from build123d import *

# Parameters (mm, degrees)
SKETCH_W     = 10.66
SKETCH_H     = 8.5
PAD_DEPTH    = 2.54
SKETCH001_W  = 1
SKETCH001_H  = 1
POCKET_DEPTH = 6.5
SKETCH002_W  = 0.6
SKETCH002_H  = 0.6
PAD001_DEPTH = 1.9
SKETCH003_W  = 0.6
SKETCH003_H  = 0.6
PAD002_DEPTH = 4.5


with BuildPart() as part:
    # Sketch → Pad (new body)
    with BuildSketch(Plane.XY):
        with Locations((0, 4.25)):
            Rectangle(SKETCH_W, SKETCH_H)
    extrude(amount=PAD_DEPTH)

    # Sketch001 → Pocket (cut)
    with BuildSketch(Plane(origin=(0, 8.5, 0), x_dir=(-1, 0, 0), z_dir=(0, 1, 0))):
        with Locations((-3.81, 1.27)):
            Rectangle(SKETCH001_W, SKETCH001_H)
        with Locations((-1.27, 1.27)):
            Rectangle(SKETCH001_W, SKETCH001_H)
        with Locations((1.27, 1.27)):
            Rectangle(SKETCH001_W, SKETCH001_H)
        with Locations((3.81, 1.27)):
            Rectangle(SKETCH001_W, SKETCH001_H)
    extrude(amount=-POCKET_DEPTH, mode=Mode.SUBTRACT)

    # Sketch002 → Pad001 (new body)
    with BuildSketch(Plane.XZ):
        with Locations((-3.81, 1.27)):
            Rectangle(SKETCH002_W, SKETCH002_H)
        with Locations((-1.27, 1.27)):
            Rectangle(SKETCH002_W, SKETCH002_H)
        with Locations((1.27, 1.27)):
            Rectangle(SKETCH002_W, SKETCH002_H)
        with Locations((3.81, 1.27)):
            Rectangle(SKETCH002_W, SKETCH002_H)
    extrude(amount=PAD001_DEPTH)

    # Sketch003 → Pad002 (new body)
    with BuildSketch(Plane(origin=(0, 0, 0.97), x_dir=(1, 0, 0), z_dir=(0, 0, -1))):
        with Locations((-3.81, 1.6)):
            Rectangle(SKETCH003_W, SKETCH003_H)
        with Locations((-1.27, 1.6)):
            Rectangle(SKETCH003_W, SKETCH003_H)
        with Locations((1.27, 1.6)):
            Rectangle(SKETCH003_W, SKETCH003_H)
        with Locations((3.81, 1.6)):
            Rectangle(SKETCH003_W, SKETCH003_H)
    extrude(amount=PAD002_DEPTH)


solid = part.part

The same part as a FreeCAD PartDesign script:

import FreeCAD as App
import Part
import Sketcher
from FreeCAD import Vector

doc = App.newDocument("Part")
params = doc.addObject("Spreadsheet::Sheet", "Params")
for row, (alias, value) in enumerate([
    ("sketch1_height", "8.5 mm"),
    ("sketch1_width", "10.66 mm"),
    ("pad1_length", "2.54 mm"),
    ("sketch2_width", "1 mm"),
    ("pocket1_length", "6.5 mm"),
    ("sketch3_width", "0.6 mm"),
    ("pad2_length", "1.9 mm"),
    ("sketch4_width", "0.6 mm"),
    ("pad3_length", "4.5 mm"),
], start=1):
    params.set(f"A{row}", alias)
    params.set(f"B{row}", "=" + value)
    params.setAlias(f"B{row}", alias)

body = doc.addObject("PartDesign::Body", "Body")

# Sketch on XY plane
sketch1 = doc.addObject("Sketcher::SketchObject", "Sketch")
body.addObject(sketch1)
sketch1.AttachmentSupport = (doc.XY_Plane, [""])
sketch1.MapMode = "FlatFace"
sketch1.addGeometry([
    Part.LineSegment(Vector(-5, 8, 0), Vector(-5, 0, 0)),
    Part.LineSegment(Vector(-5, 0, 0), Vector(5, 0, 0)),
    Part.LineSegment(Vector(5, 0, 0), Vector(5, 8, 0)),
    Part.LineSegment(Vector(5, 8, 0), Vector(-5, 8, 0)),
], False)
sketch1.addConstraint([
    Sketcher.Constraint("Coincident", 0, 2, 1, 1),
    Sketcher.Constraint("Coincident", 1, 2, 2, 1),
    Sketcher.Constraint("Coincident", 2, 2, 3, 1),
    Sketcher.Constraint("Coincident", 3, 2, 0, 1),
    Sketcher.Constraint("Vertical", 0),
    Sketcher.Constraint("Horizontal", 1),
    Sketcher.Constraint("Vertical", 2),
    Sketcher.Constraint("Horizontal", 3),
    Sketcher.Constraint("Symmetric", 0, 2, 1, 2, -1, 1),
    Sketcher.Constraint("DistanceY", 0, 2, 0, 1, 8.5),
    Sketcher.Constraint("DistanceX", 1, 1, 1, 2, 10.66),
])
sketch1.setExpression("Constraints[9]", "Params.sketch1_height")
sketch1.setExpression("Constraints[10]", "Params.sketch1_width")
pad1 = doc.addObject("PartDesign::Pad", "Pad")
body.addObject(pad1)
pad1.Profile = sketch1
pad1.setExpression("Length", "Params.pad1_length")

# Sketch on XZ plane
sketch2 = doc.addObject("Sketcher::SketchObject", "Sketch001")
body.addObject(sketch2)
sketch2.AttachmentSupport = (doc.XZ_Plane, [""])
sketch2.MapMode = "FlatFace"
sketch2.AttachmentOffset = App.Placement(Vector(0, 0, -8.5), App.Rotation())
sketch2.addGeometry([
    Part.LineSegment(Vector(4.3, 1.8, 0), Vector(4.3, 0.8, 0)),  # 0
    Part.LineSegment(Vector(4.3, 0.8, 0), Vector(3.3, 0.8, 0)),  # 1
    Part.LineSegment(Vector(3.3, 0.8, 0), Vector(3.3, 1.8, 0)),  # 2
    Part.LineSegment(Vector(3.3, 1.8, 0), Vector(4.3, 1.8, 0)),  # 3
    Part.LineSegment(Vector(1.8, 1.8, 0), Vector(1.8, 0.8, 0)),  # 4
    Part.LineSegment(Vector(1.8, 0.8, 0), Vector(0.8, 0.8, 0)),  # 5
    Part.LineSegment(Vector(0.8, 0.8, 0), Vector(0.8, 1.8, 0)),  # 6
    Part.LineSegment(Vector(0.8, 1.8, 0), Vector(1.8, 1.8, 0)),  # 7
    Part.LineSegment(Vector(-0.8, 1.8, 0), Vector(-0.8, 0.8, 0)),  # 8
    Part.LineSegment(Vector(-0.8, 0.8, 0), Vector(-1.8, 0.8, 0)),  # 9
    Part.LineSegment(Vector(-1.8, 0.8, 0), Vector(-1.8, 1.8, 0)),  # 10
    Part.LineSegment(Vector(-1.8, 1.8, 0), Vector(-0.8, 1.8, 0)),  # 11
    Part.LineSegment(Vector(-3.3, 1.8, 0), Vector(-3.3, 0.8, 0)),  # 12
    Part.LineSegment(Vector(-3.3, 0.8, 0), Vector(-4.3, 0.8, 0)),  # 13
    Part.LineSegment(Vector(-4.3, 0.8, 0), Vector(-4.3, 1.8, 0)),  # 14
    Part.LineSegment(Vector(-4.3, 1.8, 0), Vector(-3.3, 1.8, 0)),  # 15
], False)
sketch2.addConstraint([
    Sketcher.Constraint("Coincident", 0, 2, 1, 1),
    Sketcher.Constraint("Coincident", 1, 2, 2, 1),
    Sketcher.Constraint("Coincident", 2, 2, 3, 1),
    Sketcher.Constraint("Coincident", 3, 2, 0, 1),
    Sketcher.Constraint("Coincident", 4, 2, 5, 1),
    Sketcher.Constraint("Coincident", 5, 2, 6, 1),
    Sketcher.Constraint("Coincident", 6, 2, 7, 1),
    Sketcher.Constraint("Coincident", 7, 2, 4, 1),
    Sketcher.Constraint("Coincident", 8, 2, 9, 1),
    Sketcher.Constraint("Coincident", 9, 2, 10, 1),
    Sketcher.Constraint("Coincident", 10, 2, 11, 1),
    Sketcher.Constraint("Coincident", 11, 2, 8, 1),
    Sketcher.Constraint("Coincident", 12, 2, 13, 1),
    Sketcher.Constraint("Coincident", 13, 2, 14, 1),
    Sketcher.Constraint("Coincident", 14, 2, 15, 1),
    Sketcher.Constraint("Coincident", 15, 2, 12, 1),
    Sketcher.Constraint("Vertical", 0),
    Sketcher.Constraint("Horizontal", 1),
    Sketcher.Constraint("Vertical", 2),
    Sketcher.Constraint("Horizontal", 3),
    Sketcher.Constraint("Vertical", 4),
    Sketcher.Constraint("Horizontal", 5),
    Sketcher.Constraint("Vertical", 6),
    Sketcher.Constraint("Horizontal", 7),
    Sketcher.Constraint("Vertical", 8),
    Sketcher.Constraint("Horizontal", 9),
    Sketcher.Constraint("Vertical", 10),
    Sketcher.Constraint("Horizontal", 11),
    Sketcher.Constraint("Vertical", 12),
    Sketcher.Constraint("Horizontal", 13),
    Sketcher.Constraint("Vertical", 14),
    Sketcher.Constraint("Horizontal", 15),
    Sketcher.Constraint("Symmetric", 5, 2, 8, 2, -2),
    Sketcher.Constraint("Symmetric", 7, 2, 10, 2, -2),
    Sketcher.Constraint("Symmetric", 1, 2, 12, 2, -2),
    Sketcher.Constraint("Symmetric", 3, 2, 14, 2, -2),
    Sketcher.Constraint("Horizontal", 1, 2, 4, 2),
    Sketcher.Constraint("Horizontal", 3, 2, 6, 2),
    Sketcher.Constraint("Equal", 3, 5),
    Sketcher.Constraint("Equal", 15, 0),
    Sketcher.Constraint("DistanceX", 1, 2, 1, 1, 1.0),
    Sketcher.Constraint("DistanceX", -1, 1, 0, 2, 4.31),
    Sketcher.Constraint("DistanceY", -1, 1, 0, 2, 0.77),
    Sketcher.Constraint("DistanceX", -1, 1, 4, 2, 1.77),
])
sketch2.setExpression("Constraints[40]", "Params.sketch2_width")
pocket1 = doc.addObject("PartDesign::Pocket", "Pocket")
body.addObject(pocket1)
pocket1.Profile = sketch2
pocket1.setExpression("Length", "Params.pocket1_length")
pocket1.Reversed = True

# Sketch on XZ plane
sketch3 = doc.addObject("Sketcher::SketchObject", "Sketch002")
body.addObject(sketch3)
sketch3.AttachmentSupport = (doc.XZ_Plane, [""])
sketch3.MapMode = "FlatFace"
sketch3.addGeometry([
    Part.LineSegment(Vector(-4.1, 1.6, 0), Vector(-4.1, 1, 0)),  # 0
    Part.LineSegment(Vector(-4.1, 1, 0), Vector(-3.5, 1, 0)),  # 1
    Part.LineSegment(Vector(-3.5, 1, 0), Vector(-3.5, 1.6, 0)),  # 2
    Part.LineSegment(Vector(-3.5, 1.6, 0), Vector(-4.1, 1.6, 0)),  # 3
    Part.LineSegment(Vector(-1.6, 1.6, 0), Vector(-1.6, 1, 0)),  # 4
    Part.LineSegment(Vector(-1.6, 1, 0), Vector(-1, 1, 0)),  # 5
    Part.LineSegment(Vector(-1, 1, 0), Vector(-1, 1.6, 0)),  # 6
    Part.LineSegment(Vector(-1, 1.6, 0), Vector(-1.6, 1.6, 0)),  # 7
    Part.LineSegment(Vector(1, 1.6, 0), Vector(1, 1, 0)),  # 8
    Part.LineSegment(Vector(1, 1, 0), Vector(1.6, 1, 0)),  # 9
    Part.LineSegment(Vector(1.6, 1, 0), Vector(1.6, 1.6, 0)),  # 10
    Part.LineSegment(Vector(1.6, 1.6, 0), Vector(1, 1.6, 0)),  # 11
    Part.LineSegment(Vector(3.5, 1.6, 0), Vector(3.5, 1, 0)),  # 12
    Part.LineSegment(Vector(3.5, 1, 0), Vector(4.1, 1, 0)),  # 13
    Part.LineSegment(Vector(4.1, 1, 0), Vector(4.1, 1.6, 0)),  # 14
    Part.LineSegment(Vector(4.1, 1.6, 0), Vector(3.5, 1.6, 0)),  # 15
], False)
sketch3.addConstraint([
    Sketcher.Constraint("Coincident", 0, 2, 1, 1),
    Sketcher.Constraint("Coincident", 1, 2, 2, 1),
    Sketcher.Constraint("Coincident", 2, 2, 3, 1),
    Sketcher.Constraint("Coincident", 3, 2, 0, 1),
    Sketcher.Constraint("Coincident", 4, 2, 5, 1),
    Sketcher.Constraint("Coincident", 5, 2, 6, 1),
    Sketcher.Constraint("Coincident", 6, 2, 7, 1),
    Sketcher.Constraint("Coincident", 7, 2, 4, 1),
    Sketcher.Constraint("Coincident", 8, 2, 9, 1),
    Sketcher.Constraint("Coincident", 9, 2, 10, 1),
    Sketcher.Constraint("Coincident", 10, 2, 11, 1),
    Sketcher.Constraint("Coincident", 11, 2, 8, 1),
    Sketcher.Constraint("Coincident", 12, 2, 13, 1),
    Sketcher.Constraint("Coincident", 13, 2, 14, 1),
    Sketcher.Constraint("Coincident", 14, 2, 15, 1),
    Sketcher.Constraint("Coincident", 15, 2, 12, 1),
    Sketcher.Constraint("Vertical", 0),
    Sketcher.Constraint("Horizontal", 1),
    Sketcher.Constraint("Vertical", 2),
    Sketcher.Constraint("Horizontal", 3),
    Sketcher.Constraint("Vertical", 4),
    Sketcher.Constraint("Horizontal", 5),
    Sketcher.Constraint("Vertical", 6),
    Sketcher.Constraint("Horizontal", 7),
    Sketcher.Constraint("Vertical", 8),
    Sketcher.Constraint("Horizontal", 9),
    Sketcher.Constraint("Vertical", 10),
    Sketcher.Constraint("Horizontal", 11),
    Sketcher.Constraint("Vertical", 12),
    Sketcher.Constraint("Horizontal", 13),
    Sketcher.Constraint("Vertical", 14),
    Sketcher.Constraint("Horizontal", 15),
    Sketcher.Constraint("Symmetric", 5, 2, 8, 2, -2),
    Sketcher.Constraint("Symmetric", 7, 2, 10, 2, -2),
    Sketcher.Constraint("Symmetric", 1, 2, 12, 2, -2),
    Sketcher.Constraint("Symmetric", 3, 2, 14, 2, -2),
    Sketcher.Constraint("Horizontal", 1, 2, 4, 2),
    Sketcher.Constraint("Horizontal", 3, 2, 6, 2),
    Sketcher.Constraint("Equal", 3, 5),
    Sketcher.Constraint("Equal", 15, 0),
    Sketcher.Constraint("DistanceX", 1, 1, 1, 2, 0.6),
    Sketcher.Constraint("DistanceX", 0, 2, -1, 1, 4.11),
    Sketcher.Constraint("DistanceY", -1, 1, 0, 2, 0.97),
    Sketcher.Constraint("DistanceX", 4, 2, -1, 1, 1.57),
])
sketch3.setExpression("Constraints[40]", "Params.sketch3_width")
pad2 = doc.addObject("PartDesign::Pad", "Pad001")
body.addObject(pad2)
pad2.Profile = sketch3
pad2.setExpression("Length", "Params.pad2_length")

# Sketch on XY plane
sketch4 = doc.addObject("Sketcher::SketchObject", "Sketch003")
body.addObject(sketch4)
sketch4.AttachmentSupport = (doc.XY_Plane, [""])
sketch4.MapMode = "FlatFace"
sketch4.AttachmentOffset = App.Placement(Vector(0, 0, 0.97), App.Rotation())
sketch4.addGeometry([
    Part.LineSegment(Vector(-4.1, -1.9, 0), Vector(-4.1, -1.3, 0)),  # 0
    Part.LineSegment(Vector(-4.1, -1.3, 0), Vector(-3.5, -1.3, 0)),  # 1
    Part.LineSegment(Vector(-3.5, -1.3, 0), Vector(-3.5, -1.9, 0)),  # 2
    Part.LineSegment(Vector(-3.5, -1.9, 0), Vector(-4.1, -1.9, 0)),  # 3
    Part.LineSegment(Vector(-1.6, -1.9, 0), Vector(-1.6, -1.3, 0)),  # 4
    Part.LineSegment(Vector(-1.6, -1.3, 0), Vector(-1, -1.3, 0)),  # 5
    Part.LineSegment(Vector(-1, -1.3, 0), Vector(-1, -1.9, 0)),  # 6
    Part.LineSegment(Vector(-1, -1.9, 0), Vector(-1.6, -1.9, 0)),  # 7
    Part.LineSegment(Vector(1, -1.9, 0), Vector(1, -1.3, 0)),  # 8
    Part.LineSegment(Vector(1, -1.3, 0), Vector(1.6, -1.3, 0)),  # 9
    Part.LineSegment(Vector(1.6, -1.3, 0), Vector(1.6, -1.9, 0)),  # 10
    Part.LineSegment(Vector(1.6, -1.9, 0), Vector(1, -1.9, 0)),  # 11
    Part.LineSegment(Vector(3.5, -1.9, 0), Vector(3.5, -1.3, 0)),  # 12
    Part.LineSegment(Vector(3.5, -1.3, 0), Vector(4.1, -1.3, 0)),  # 13
    Part.LineSegment(Vector(4.1, -1.3, 0), Vector(4.1, -1.9, 0)),  # 14
    Part.LineSegment(Vector(4.1, -1.9, 0), Vector(3.5, -1.9, 0)),  # 15
], False)
sketch4.addConstraint([
    Sketcher.Constraint("Coincident", 0, 2, 1, 1),
    Sketcher.Constraint("Coincident", 1, 2, 2, 1),
    Sketcher.Constraint("Coincident", 2, 2, 3, 1),
    Sketcher.Constraint("Coincident", 3, 2, 0, 1),
    Sketcher.Constraint("Coincident", 4, 2, 5, 1),
    Sketcher.Constraint("Coincident", 5, 2, 6, 1),
    Sketcher.Constraint("Coincident", 6, 2, 7, 1),
    Sketcher.Constraint("Coincident", 7, 2, 4, 1),
    Sketcher.Constraint("Coincident", 8, 2, 9, 1),
    Sketcher.Constraint("Coincident", 9, 2, 10, 1),
    Sketcher.Constraint("Coincident", 10, 2, 11, 1),
    Sketcher.Constraint("Coincident", 11, 2, 8, 1),
    Sketcher.Constraint("Coincident", 12, 2, 13, 1),
    Sketcher.Constraint("Coincident", 13, 2, 14, 1),
    Sketcher.Constraint("Coincident", 14, 2, 15, 1),
    Sketcher.Constraint("Coincident", 15, 2, 12, 1),
    Sketcher.Constraint("Vertical", 0),
    Sketcher.Constraint("Horizontal", 1),
    Sketcher.Constraint("Vertical", 2),
    Sketcher.Constraint("Horizontal", 3),
    Sketcher.Constraint("Vertical", 4),
    Sketcher.Constraint("Horizontal", 5),
    Sketcher.Constraint("Vertical", 6),
    Sketcher.Constraint("Horizontal", 7),
    Sketcher.Constraint("Vertical", 8),
    Sketcher.Constraint("Horizontal", 9),
    Sketcher.Constraint("Vertical", 10),
    Sketcher.Constraint("Horizontal", 11),
    Sketcher.Constraint("Vertical", 12),
    Sketcher.Constraint("Horizontal", 13),
    Sketcher.Constraint("Vertical", 14),
    Sketcher.Constraint("Horizontal", 15),
    Sketcher.Constraint("Symmetric", 5, 2, 8, 2, -2),
    Sketcher.Constraint("Symmetric", 7, 2, 10, 2, -2),
    Sketcher.Constraint("Symmetric", 1, 2, 12, 2, -2),
    Sketcher.Constraint("Symmetric", 3, 2, 14, 2, -2),
    Sketcher.Constraint("Horizontal", 1, 2, 4, 2),
    Sketcher.Constraint("Horizontal", 3, 2, 6, 2),
    Sketcher.Constraint("Equal", 3, 5),
    Sketcher.Constraint("Equal", 15, 0),
    Sketcher.Constraint("DistanceX", 1, 1, 1, 2, 0.6),
    Sketcher.Constraint("DistanceY", 0, 2, -1, 1, 1.3),
    Sketcher.Constraint("DistanceX", 0, 2, -1, 1, 4.11),
    Sketcher.Constraint("DistanceX", 4, 2, -1, 1, 1.57),
])
sketch4.setExpression("Constraints[40]", "Params.sketch4_width")
pad3 = doc.addObject("PartDesign::Pad", "Pad002")
body.addObject(pad3)
pad3.Profile = sketch4
pad3.setExpression("Length", "Params.pad3_length")
pad3.Reversed = True

doc.recompute()
